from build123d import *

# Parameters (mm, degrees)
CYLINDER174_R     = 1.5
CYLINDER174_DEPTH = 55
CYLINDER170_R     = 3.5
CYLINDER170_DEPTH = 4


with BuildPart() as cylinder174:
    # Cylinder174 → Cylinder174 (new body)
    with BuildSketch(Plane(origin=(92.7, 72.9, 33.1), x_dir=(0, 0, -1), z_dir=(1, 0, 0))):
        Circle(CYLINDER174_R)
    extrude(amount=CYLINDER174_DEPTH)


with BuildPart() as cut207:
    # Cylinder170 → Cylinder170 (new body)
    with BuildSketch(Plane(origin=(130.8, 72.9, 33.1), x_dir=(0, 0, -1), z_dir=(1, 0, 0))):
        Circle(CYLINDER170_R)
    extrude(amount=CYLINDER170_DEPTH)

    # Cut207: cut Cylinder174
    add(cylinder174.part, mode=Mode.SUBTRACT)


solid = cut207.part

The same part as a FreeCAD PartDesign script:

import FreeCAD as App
import Part
import Sketcher
from FreeCAD import Vector
Q = App.Units.Quantity

doc = App.newDocument("Part")
body = doc.addObject("PartDesign::Body", "Body")

sketch1 = body.newObject("Sketcher::SketchObject", "Sketch")
sketch1.AttachmentSupport = (doc.getObject("YZ_Plane"), [""])
sketch1.MapMode = "FlatFace"
sketch1.AttachmentOffset = App.Placement(Vector(0, 0, 92.7), App.Rotation())
sketch1.addGeometry(Part.Circle(Vector(72.9, 33.1, 0), Vector(0, 0, 1), 1.5), False)
sketch1.addConstraint([
    Sketcher.Constraint("Diameter", 0, Q("3 mm")),
    Sketcher.Constraint("DistanceX", -1, 1, 0, 3, Q("72.9 mm")),
    Sketcher.Constraint("DistanceY", -1, 1, 0, 3, Q("33.1 mm")),
])
pad1 = body.newObject("PartDesign::Pad", "Pad")
pad1.Profile = sketch1
pad1.Length = 55
body2 = doc.addObject("PartDesign::Body", "Body001")

sketch2 = body2.newObject("Sketcher::SketchObject", "Sketch001")
sketch2.AttachmentSupport = (doc.getObject("YZ_Plane001"), [""])
sketch2.MapMode = "FlatFace"
sketch2.AttachmentOffset = App.Placement(Vector(0, 0, 130.8), App.Rotation())
sketch2.addGeometry(Part.Circle(Vector(72.9, 33.1, 0), Vector(0, 0, 1), 3.5), False)
sketch2.addConstraint([
    Sketcher.Constraint("Diameter", 0, Q("7 mm")),
    Sketcher.Constraint("DistanceX", -1, 1, 0, 3, Q("72.9 mm")),
    Sketcher.Constraint("DistanceY", -1, 1, 0, 3, Q("33.1 mm")),
])
pad2 = body2.newObject("PartDesign::Pad", "Pad001")
pad2.Profile = sketch2
pad2.Length = 4
doc.recompute()

boolean = body2.newObject("PartDesign::Boolean", "Boolean")
boolean.Type = "Cut"
boolean.addObjects([body])

doc.recompute()
